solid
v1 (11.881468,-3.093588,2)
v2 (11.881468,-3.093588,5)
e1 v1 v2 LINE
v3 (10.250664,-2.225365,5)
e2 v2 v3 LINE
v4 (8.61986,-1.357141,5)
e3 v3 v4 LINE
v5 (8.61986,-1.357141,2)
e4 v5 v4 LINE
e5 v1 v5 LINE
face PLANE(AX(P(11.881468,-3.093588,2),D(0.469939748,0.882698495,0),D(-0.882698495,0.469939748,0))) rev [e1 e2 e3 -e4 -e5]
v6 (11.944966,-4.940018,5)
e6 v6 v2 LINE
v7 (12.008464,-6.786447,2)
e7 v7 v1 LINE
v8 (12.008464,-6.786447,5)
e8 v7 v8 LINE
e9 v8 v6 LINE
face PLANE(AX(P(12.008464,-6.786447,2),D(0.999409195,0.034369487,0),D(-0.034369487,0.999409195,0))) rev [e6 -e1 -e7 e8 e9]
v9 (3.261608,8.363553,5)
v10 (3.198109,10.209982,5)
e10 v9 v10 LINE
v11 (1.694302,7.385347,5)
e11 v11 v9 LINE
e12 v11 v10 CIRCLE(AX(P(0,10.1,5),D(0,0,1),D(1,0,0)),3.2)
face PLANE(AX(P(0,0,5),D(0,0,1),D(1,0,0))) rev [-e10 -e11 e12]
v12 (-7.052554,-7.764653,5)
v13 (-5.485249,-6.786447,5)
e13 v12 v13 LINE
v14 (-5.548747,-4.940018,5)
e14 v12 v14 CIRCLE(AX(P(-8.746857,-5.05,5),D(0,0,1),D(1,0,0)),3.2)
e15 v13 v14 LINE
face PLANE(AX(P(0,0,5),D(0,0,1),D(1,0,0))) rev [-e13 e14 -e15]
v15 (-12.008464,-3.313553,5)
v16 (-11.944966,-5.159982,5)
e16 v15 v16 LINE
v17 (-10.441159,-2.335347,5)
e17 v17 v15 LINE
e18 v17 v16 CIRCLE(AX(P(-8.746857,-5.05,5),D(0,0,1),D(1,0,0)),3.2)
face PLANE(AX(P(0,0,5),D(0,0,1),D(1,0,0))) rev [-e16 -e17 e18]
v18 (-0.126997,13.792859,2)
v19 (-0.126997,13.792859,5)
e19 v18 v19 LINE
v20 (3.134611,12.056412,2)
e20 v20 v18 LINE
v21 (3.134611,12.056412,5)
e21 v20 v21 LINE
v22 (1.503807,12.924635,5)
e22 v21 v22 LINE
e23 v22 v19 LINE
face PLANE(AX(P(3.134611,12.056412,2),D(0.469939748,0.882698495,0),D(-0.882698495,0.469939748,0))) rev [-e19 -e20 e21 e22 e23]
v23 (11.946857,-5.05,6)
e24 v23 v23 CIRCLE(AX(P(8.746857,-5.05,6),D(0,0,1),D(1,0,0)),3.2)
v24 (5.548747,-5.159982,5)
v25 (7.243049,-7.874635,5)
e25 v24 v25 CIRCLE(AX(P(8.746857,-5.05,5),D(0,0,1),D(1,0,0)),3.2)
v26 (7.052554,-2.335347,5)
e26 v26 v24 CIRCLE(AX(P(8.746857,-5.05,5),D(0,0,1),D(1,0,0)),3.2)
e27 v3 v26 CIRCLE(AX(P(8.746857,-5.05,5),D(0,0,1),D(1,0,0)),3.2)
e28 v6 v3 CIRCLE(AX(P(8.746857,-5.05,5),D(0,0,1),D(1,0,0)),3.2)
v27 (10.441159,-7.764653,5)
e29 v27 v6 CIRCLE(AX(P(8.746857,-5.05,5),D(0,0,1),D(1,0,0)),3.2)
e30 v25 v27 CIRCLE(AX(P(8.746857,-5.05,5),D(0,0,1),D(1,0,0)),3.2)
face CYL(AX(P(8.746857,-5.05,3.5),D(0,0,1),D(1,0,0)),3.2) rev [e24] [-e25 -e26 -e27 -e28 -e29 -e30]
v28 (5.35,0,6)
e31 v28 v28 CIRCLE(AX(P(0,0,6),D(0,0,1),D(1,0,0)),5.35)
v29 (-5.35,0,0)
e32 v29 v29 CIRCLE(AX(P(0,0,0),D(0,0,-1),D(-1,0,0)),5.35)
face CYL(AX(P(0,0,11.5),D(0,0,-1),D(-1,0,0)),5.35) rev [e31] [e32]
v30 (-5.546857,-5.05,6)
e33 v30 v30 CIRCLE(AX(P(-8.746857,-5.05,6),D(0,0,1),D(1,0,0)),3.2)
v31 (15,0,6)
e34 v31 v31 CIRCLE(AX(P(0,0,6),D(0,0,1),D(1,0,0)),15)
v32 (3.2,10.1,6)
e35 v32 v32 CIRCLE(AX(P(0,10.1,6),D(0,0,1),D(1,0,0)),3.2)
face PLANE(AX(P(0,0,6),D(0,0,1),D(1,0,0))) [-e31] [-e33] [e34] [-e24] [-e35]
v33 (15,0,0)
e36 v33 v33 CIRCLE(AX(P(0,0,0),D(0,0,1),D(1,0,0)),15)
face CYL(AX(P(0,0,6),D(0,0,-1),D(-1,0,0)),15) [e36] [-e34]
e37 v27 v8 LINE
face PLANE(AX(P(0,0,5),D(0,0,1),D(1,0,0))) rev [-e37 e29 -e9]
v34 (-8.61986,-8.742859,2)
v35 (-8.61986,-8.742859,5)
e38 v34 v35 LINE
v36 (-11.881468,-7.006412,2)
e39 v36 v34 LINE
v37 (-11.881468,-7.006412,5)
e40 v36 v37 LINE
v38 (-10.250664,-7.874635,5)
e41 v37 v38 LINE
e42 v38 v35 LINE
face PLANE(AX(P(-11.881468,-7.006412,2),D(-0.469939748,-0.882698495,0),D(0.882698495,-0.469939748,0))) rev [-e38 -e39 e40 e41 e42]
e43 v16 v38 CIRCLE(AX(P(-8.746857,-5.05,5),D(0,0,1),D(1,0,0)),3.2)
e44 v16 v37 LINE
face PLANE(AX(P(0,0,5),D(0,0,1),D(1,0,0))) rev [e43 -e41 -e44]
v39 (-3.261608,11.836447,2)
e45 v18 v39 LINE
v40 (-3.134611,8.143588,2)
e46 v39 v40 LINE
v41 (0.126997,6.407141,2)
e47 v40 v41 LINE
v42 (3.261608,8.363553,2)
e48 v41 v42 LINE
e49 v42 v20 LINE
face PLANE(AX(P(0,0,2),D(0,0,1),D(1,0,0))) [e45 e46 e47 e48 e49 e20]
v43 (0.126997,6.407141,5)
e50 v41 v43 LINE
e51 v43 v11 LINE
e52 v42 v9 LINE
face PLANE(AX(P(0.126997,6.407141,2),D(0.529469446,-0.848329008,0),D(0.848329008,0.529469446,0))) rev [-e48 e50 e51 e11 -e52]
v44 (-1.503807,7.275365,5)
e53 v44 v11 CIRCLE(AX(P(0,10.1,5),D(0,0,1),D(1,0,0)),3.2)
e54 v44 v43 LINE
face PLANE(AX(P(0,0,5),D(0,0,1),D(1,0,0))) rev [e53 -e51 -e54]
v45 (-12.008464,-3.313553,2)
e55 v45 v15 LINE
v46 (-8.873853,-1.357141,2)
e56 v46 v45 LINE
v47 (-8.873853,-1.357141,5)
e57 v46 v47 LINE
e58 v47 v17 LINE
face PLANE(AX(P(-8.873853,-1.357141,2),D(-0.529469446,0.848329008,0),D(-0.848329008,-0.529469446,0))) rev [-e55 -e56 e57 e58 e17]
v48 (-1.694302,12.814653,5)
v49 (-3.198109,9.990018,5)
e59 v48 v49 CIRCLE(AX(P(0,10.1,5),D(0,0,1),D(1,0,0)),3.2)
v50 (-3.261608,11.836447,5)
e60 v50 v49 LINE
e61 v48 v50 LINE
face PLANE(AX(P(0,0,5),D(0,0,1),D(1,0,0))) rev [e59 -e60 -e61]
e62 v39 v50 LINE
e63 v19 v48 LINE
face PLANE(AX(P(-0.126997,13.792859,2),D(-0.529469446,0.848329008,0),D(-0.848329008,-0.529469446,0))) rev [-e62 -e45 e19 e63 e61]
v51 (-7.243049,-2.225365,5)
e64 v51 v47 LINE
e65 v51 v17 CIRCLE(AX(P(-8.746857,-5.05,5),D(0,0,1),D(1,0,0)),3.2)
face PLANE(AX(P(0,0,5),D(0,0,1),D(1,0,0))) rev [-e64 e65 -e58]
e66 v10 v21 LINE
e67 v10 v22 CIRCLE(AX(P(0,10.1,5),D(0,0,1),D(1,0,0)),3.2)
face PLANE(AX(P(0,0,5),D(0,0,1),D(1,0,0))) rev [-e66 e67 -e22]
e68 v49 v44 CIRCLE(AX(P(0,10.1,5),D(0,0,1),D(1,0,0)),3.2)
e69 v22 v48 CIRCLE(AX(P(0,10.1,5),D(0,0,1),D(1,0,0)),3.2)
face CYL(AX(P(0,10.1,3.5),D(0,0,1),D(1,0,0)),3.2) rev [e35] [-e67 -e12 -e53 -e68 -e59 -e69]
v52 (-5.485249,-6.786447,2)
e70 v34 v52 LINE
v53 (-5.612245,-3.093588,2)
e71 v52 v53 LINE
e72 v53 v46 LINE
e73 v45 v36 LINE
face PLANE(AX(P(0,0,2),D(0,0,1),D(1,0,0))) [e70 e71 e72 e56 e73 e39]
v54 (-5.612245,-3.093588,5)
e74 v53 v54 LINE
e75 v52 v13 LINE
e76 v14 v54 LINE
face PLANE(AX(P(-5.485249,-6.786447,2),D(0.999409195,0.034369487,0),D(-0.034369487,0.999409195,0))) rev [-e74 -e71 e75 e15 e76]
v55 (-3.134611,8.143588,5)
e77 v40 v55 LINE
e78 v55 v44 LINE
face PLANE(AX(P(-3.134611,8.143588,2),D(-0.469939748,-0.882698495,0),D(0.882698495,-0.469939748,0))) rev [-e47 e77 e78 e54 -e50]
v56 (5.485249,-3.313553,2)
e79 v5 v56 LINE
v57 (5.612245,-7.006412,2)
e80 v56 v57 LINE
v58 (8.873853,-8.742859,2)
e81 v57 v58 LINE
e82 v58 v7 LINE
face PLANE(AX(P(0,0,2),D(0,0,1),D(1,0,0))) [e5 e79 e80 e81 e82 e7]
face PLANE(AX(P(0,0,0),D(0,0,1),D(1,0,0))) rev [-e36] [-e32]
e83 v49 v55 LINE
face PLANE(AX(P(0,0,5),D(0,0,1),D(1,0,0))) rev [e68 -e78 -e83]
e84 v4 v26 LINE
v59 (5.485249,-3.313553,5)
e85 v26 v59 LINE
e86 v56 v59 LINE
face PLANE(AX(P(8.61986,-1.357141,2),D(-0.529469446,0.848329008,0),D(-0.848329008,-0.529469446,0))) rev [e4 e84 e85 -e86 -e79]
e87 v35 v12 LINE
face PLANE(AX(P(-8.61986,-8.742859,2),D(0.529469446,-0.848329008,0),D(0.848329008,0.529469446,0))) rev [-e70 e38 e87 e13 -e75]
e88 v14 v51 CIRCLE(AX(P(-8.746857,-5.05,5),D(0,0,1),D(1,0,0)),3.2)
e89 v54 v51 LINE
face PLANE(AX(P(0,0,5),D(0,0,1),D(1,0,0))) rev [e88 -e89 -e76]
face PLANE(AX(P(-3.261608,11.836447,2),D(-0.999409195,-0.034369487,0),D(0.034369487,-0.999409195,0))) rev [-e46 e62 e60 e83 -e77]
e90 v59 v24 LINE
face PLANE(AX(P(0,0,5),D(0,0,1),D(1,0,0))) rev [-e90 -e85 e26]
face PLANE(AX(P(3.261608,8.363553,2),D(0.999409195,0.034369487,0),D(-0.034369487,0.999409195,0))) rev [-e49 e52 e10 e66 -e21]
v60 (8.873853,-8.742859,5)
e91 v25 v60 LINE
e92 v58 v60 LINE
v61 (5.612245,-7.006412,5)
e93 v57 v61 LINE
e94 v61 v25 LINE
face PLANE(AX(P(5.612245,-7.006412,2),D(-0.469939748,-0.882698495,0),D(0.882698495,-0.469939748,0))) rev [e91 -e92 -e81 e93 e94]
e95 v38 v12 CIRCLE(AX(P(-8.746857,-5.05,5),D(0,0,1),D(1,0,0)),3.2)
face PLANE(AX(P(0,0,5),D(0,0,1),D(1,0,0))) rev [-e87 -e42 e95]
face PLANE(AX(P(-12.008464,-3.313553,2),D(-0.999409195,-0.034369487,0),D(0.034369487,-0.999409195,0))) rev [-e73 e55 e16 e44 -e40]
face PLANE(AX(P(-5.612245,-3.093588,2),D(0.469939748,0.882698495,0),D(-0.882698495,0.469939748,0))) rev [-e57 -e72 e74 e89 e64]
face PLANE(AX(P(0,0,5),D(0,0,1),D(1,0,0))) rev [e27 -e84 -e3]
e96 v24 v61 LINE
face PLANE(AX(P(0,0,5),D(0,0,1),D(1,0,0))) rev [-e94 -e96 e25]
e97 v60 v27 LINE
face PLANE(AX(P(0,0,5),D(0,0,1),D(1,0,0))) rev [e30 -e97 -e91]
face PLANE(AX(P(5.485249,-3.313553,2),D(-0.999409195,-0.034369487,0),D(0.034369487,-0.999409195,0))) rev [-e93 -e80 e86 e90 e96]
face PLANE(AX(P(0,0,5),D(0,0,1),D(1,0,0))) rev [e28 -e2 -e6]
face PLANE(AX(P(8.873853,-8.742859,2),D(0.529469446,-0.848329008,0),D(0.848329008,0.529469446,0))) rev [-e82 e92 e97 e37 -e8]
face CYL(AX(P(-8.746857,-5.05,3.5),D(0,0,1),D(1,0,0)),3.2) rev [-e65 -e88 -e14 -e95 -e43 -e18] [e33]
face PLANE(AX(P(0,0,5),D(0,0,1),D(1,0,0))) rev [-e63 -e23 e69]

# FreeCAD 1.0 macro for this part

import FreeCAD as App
import Part
import Sketcher

V = App.Vector
Q = App.Units.Quantity


def add_polygon(sketch, points):
    """Adds a closed chain of lines whose ends are joined by coincident constraints."""
    first, n = sketch.GeometryCount, len(points)
    for a, b in zip(points, points[1:] + points[:1]):
        sketch.addGeometry(Part.LineSegment(App.Vector(*a, 0), App.Vector(*b, 0)), False)
    for i in range(n):
        sketch.addConstraint(Sketcher.Constraint("Coincident", first + i, 2, first + (i + 1) % n, 1))

doc = App.newDocument("Part")
body = doc.addObject("PartDesign::Body", "Body")

sketch1 = body.newObject("Sketcher::SketchObject", "Sketch")
sketch1.AttachmentSupport = (doc.getObject("XY_Plane"), [""])
sketch1.MapMode = "FlatFace"
sketch1.addGeometry(Part.Circle(V(0, 0, 0), V(0, 0, 1), 15), False)
sketch1.addConstraint([
    Sketcher.Constraint("Coincident", 0, 3, -1, 1),
    Sketcher.Constraint("Diameter", 0, Q("30 mm")),
])
pad1 = body.newObject("PartDesign::Pad", "Pad")
pad1.Profile = sketch1
pad1.Length = 6

sketch2 = body.newObject("Sketcher::SketchObject", "Sketch001")
sketch2.AttachmentSupport = (doc.getObject("XY_Plane"), [""])
sketch2.MapMode = "FlatFace"
sketch2.addGeometry(Part.Circle(V(0, 0, 0), V(0, 0, 1), 5), False)
sketch2.addConstraint([
    Sketcher.Constraint("Coincident", 0, 3, -1, 1),
    Sketcher.Constraint("Diameter", 0, Q("10.7 mm")),
])
pocket1 = body.newObject("PartDesign::Pocket", "Pocket")
pocket1.Profile = sketch2
pocket1.Length = 11.5
pocket1.Reversed = True

sketch3 = body.newObject("Sketcher::SketchObject", "Sketch002")
sketch3.AttachmentSupport = (doc.getObject("XY_Plane"), [""])
sketch3.MapMode = "FlatFace"
sketch3.AttachmentOffset = App.Placement(V(0, 0, 5), App.Rotation())
add_polygon(sketch3, [(8.9, -8.7), (12, -6.8), (11.9, -3.1), (8.6, -1.4), (5.5, -3.3), (5.6, -7)])
add_polygon(sketch3, [(3.1, 12.1), (-0.1, 13.8), (-3.3, 11.8), (-3.1, 8.1), (0.1, 6.4), (3.3, 8.4)])
add_polygon(sketch3, [(-12, -3.3), (-11.9, -7), (-8.6, -8.7), (-5.5, -6.8), (-5.6, -3.1), (-8.9, -1.4)])
sketch3.addConstraint([
    Sketcher.Constraint("Parallel", 0, 3),
    Sketcher.Constraint("Parallel", 1, 4),
    Sketcher.Constraint("Parallel", 2, 5),
    Sketcher.Constraint("Parallel", 5, 6),
    Sketcher.Constraint("Parallel", 3, 7),
    Sketcher.Constraint("Parallel", 4, 8),
    Sketcher.Constraint("Parallel", 6, 9),
    Sketcher.Constraint("Parallel", 7, 10),
    Sketcher.Constraint("Parallel", 8, 11),
    Sketcher.Constraint("Parallel", 11, 12),
    Sketcher.Constraint("Parallel", 9, 13),
    Sketcher.Constraint("Parallel", 10, 14),
    Sketcher.Constraint("Parallel", 12, 15),
    Sketcher.Constraint("Parallel", 13, 16),
    Sketcher.Constraint("Parallel", 14, 17),
    Sketcher.Constraint("Horizontal", 4, 2, 12, 2),
    Sketcher.Constraint("Horizontal", 5, 2, 13, 2),
    Sketcher.Constraint("Horizontal", 0, 2, 14, 2),
    Sketcher.Constraint("Horizontal", 1, 2, 15, 2),
    Sketcher.Constraint("Horizontal", 2, 2, 16, 2),
    Sketcher.Constraint("Equal", 0, 1),
    Sketcher.Constraint("Equal", 1, 2),
    Sketcher.Constraint("Equal", 2, 3),
    Sketcher.Constraint("Equal", 5, 6),
    Sketcher.Constraint("Equal", 6, 7),
    Sketcher.Constraint("Equal", 7, 8),
    Sketcher.Constraint("Equal", 8, 9),
    Sketcher.Constraint("DistanceY", 2, 2, 6, 2, Q("15.15 mm")),
    Sketcher.Constraint("Distance", 0, Q("3.695042 mm")),
    Sketcher.Constraint("DistanceY", 1, 2, -1, 1, Q("3.093588 mm")),
    Sketcher.Constraint("DistanceX", -1, 1, 2, 2, Q("8.61986 mm")),
    Sketcher.Constraint("DistanceY", 2, 2, -1, 1, Q("1.357141 mm")),
    Sketcher.Constraint("DistanceX", -1, 1, 3, 2, Q("5.485249 mm")),
    Sketcher.Constraint("DistanceY", 4, 2, -1, 1, Q("7.006412 mm")),
    Sketcher.Constraint("DistanceX", 8, 2, -1, 1, Q("3.134611 mm")),
    Sketcher.Constraint("DistanceX", 13, 2, -1, 1, Q("8.61986 mm")),
])
pocket2 = body.newObject("PartDesign::Pocket", "Pocket001")
pocket2.Profile = sketch3
pocket2.Length = 3

sketch4 = body.newObject("Sketcher::SketchObject", "Sketch003")
sketch4.AttachmentSupport = (doc.getObject("XY_Plane"), [""])
sketch4.MapMode = "FlatFace"
sketch4.AttachmentOffset = App.Placement(V(0, 0, 6), App.Rotation())
sketch4.addGeometry([
    Part.Circle(V(8.7, -5, 0), V(0, 0, 1), 3.2),
    Part.Circle(V(0, 10.1, 0), V(0, 0, 1), 3.2),
    Part.Circle(V(-8.7, -5, 0), V(0, 0, 1), 3.2),
], False)
sketch4.addConstraint([
    Sketcher.Constraint("Equal", 0, 1),
    Sketcher.Constraint("Equal", 1, 2),
    Sketcher.Constraint("Symmetric", 0, 3, 2, 3, -2),
    Sketcher.Constraint("PointOnObject", 1, 3, -2),
    Sketcher.Constraint("Diameter", 0, Q("6.4 mm")),
    Sketcher.Constraint("DistanceY", -1, 1, 1, 3, Q("10.1 mm")),
    Sketcher.Constraint("DistanceY", 0, 3, -1, 1, Q("5.05 mm")),
    Sketcher.Constraint("DistanceX", -1, 1, 0, 3, Q("8.746857 mm")),
])
pocket3 = body.newObject("PartDesign::Pocket", "Pocket002")
pocket3.Profile = sketch4
pocket3.Length = 2.5

doc.recompute()
